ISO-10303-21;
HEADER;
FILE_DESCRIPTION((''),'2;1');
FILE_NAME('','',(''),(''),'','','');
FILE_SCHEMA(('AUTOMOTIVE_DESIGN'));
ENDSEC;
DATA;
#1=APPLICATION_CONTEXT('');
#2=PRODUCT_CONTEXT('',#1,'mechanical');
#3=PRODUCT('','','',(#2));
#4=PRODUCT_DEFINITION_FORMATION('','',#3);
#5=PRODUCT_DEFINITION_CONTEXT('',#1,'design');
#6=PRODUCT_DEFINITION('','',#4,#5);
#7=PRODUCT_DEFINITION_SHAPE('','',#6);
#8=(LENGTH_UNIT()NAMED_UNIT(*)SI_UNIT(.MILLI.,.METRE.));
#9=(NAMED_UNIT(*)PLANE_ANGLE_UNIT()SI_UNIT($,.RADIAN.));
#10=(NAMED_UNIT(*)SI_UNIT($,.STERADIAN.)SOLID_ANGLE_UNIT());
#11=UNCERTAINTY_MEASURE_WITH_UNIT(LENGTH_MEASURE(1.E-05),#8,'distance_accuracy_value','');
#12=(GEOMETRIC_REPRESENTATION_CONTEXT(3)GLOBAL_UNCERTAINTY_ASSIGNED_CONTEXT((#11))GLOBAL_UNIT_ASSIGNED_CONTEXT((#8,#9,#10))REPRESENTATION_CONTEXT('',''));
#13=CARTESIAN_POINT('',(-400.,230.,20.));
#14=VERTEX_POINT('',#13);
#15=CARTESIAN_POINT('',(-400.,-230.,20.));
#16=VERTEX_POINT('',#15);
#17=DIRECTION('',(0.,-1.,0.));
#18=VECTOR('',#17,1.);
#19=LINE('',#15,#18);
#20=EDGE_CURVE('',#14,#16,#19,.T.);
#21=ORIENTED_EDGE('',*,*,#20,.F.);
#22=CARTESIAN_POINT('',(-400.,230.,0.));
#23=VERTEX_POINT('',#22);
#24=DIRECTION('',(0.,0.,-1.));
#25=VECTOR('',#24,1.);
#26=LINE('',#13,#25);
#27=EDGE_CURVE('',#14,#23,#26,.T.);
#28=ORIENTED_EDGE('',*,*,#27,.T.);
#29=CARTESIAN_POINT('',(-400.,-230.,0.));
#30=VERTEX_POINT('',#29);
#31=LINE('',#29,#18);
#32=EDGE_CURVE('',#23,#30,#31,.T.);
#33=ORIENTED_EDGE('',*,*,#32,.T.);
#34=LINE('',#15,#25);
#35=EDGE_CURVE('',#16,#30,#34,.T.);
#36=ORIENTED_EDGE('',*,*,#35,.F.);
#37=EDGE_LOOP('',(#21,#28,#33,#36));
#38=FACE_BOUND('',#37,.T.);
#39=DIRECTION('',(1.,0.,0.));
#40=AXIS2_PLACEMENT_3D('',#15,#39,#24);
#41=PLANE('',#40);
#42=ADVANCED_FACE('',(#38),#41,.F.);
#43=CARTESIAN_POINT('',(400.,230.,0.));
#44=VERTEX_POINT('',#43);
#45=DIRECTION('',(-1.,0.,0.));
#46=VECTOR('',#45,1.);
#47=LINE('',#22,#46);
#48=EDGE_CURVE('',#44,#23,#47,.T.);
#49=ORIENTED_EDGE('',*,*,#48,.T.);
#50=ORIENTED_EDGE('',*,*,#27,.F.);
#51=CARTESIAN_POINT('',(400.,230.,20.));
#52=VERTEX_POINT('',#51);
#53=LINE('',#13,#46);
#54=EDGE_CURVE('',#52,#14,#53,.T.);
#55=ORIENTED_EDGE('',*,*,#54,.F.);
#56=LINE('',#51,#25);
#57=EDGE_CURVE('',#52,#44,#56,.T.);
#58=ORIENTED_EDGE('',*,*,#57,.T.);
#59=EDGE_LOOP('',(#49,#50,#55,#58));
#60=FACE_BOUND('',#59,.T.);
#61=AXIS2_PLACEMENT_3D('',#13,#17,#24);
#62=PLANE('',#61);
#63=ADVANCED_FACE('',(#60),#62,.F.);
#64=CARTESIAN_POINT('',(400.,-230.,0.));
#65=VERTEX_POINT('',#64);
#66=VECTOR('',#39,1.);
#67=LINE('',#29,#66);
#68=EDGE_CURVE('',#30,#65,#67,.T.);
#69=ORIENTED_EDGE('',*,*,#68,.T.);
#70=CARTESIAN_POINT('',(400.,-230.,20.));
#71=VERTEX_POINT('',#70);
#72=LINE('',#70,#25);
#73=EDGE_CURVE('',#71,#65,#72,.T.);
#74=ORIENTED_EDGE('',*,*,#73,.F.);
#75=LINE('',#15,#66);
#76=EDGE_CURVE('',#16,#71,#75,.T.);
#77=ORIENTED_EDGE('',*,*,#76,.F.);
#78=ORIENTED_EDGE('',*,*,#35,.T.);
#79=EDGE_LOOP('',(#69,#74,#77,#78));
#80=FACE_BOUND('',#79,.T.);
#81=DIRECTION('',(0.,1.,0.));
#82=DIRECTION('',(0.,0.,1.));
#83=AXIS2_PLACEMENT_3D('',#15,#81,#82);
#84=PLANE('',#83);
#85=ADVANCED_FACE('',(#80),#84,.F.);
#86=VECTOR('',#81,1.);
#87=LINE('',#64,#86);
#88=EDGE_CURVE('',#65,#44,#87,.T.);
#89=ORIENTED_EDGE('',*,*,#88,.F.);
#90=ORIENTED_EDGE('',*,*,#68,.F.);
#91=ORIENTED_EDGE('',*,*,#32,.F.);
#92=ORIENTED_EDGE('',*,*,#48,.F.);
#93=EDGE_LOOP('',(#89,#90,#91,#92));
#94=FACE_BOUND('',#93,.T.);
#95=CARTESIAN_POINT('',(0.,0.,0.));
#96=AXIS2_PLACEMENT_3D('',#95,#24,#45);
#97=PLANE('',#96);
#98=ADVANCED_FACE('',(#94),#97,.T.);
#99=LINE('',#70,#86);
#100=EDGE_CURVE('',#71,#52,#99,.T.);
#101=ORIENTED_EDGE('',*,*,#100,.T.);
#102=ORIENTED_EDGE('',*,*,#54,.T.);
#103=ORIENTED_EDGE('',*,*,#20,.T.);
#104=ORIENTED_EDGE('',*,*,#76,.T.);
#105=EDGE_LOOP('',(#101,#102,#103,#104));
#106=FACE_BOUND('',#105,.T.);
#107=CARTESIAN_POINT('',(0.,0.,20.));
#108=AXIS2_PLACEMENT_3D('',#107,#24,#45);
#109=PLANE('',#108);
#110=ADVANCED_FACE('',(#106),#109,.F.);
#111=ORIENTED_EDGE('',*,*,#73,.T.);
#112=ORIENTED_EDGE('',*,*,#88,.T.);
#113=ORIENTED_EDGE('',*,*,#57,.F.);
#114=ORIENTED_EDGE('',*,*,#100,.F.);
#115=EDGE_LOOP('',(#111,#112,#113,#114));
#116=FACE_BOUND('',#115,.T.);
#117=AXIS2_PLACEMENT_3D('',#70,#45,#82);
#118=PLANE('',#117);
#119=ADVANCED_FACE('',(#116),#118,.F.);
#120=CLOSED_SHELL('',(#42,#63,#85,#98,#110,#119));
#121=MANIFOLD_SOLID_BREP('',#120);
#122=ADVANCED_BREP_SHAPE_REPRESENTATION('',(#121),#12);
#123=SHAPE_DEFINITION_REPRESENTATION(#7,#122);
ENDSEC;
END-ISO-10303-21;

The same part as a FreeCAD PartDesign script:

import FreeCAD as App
import Part
import Sketcher

V = App.Vector

doc = App.newDocument("Part")
params = doc.addObject("Spreadsheet::Sheet", "Params")
for row, (alias, value) in enumerate([
    ("sketch1_width", "800 mm"),
    ("sketch1_height", "460 mm"),
    ("pad1_length", "20 mm"),
], start=1):
    params.set(f"A{row}", alias)
    params.set(f"B{row}", "=" + value)
    params.setAlias(f"B{row}", alias)

body = doc.addObject("PartDesign::Body", "Body")

# Sketch on XY plane
sketch1 = body.newObject("Sketcher::SketchObject", "Sketch")
sketch1.AttachmentSupport = (doc.getObject("XY_Plane"), [""])
sketch1.MapMode = "FlatFace"
sketch1.addGeometry(Part.LineSegment(V(-400, 230, 0), V(-400, -230, 0)), False)
sketch1.addGeometry(Part.LineSegment(V(-400, -230, 0), V(400, -230, 0)), False)
sketch1.addGeometry(Part.LineSegment(V(400, -230, 0), V(400, 230, 0)), False)
sketch1.addGeometry(Part.LineSegment(V(400, 230, 0), V(-400, 230, 0)), False)
sketch1.addConstraint(Sketcher.Constraint("Coincident", 0, 2, 1, 1))
sketch1.addConstraint(Sketcher.Constraint("Coincident", 1, 2, 2, 1))
sketch1.addConstraint(Sketcher.Constraint("Coincident", 2, 2, 3, 1))
sketch1.addConstraint(Sketcher.Constraint("Coincident", 3, 2, 0, 1))
sketch1.addConstraint(Sketcher.Constraint("Vertical", 0))
sketch1.addConstraint(Sketcher.Constraint("Horizontal", 1))
sketch1.addConstraint(Sketcher.Constraint("Vertical", 2))
sketch1.addConstraint(Sketcher.Constraint("Horizontal", 3))
sketch1.addConstraint(Sketcher.Constraint("Symmetric", 0, 2, 2, 2, -1, 1))
sketch1.addConstraint(Sketcher.Constraint("DistanceX", 1, 1, 1, 2, 800.0))
sketch1.addConstraint(Sketcher.Constraint("DistanceY", 0, 2, 0, 1, 460.0))
sketch1.setExpression("Constraints[9]", "Params.sketch1_width")
sketch1.setExpression("Constraints[10]", "Params.sketch1_height")
pad1 = body.newObject("PartDesign::Pad", "Pad")
pad1.Profile = sketch1
pad1.setExpression("Length", "Params.pad1_length")

doc.recompute()
